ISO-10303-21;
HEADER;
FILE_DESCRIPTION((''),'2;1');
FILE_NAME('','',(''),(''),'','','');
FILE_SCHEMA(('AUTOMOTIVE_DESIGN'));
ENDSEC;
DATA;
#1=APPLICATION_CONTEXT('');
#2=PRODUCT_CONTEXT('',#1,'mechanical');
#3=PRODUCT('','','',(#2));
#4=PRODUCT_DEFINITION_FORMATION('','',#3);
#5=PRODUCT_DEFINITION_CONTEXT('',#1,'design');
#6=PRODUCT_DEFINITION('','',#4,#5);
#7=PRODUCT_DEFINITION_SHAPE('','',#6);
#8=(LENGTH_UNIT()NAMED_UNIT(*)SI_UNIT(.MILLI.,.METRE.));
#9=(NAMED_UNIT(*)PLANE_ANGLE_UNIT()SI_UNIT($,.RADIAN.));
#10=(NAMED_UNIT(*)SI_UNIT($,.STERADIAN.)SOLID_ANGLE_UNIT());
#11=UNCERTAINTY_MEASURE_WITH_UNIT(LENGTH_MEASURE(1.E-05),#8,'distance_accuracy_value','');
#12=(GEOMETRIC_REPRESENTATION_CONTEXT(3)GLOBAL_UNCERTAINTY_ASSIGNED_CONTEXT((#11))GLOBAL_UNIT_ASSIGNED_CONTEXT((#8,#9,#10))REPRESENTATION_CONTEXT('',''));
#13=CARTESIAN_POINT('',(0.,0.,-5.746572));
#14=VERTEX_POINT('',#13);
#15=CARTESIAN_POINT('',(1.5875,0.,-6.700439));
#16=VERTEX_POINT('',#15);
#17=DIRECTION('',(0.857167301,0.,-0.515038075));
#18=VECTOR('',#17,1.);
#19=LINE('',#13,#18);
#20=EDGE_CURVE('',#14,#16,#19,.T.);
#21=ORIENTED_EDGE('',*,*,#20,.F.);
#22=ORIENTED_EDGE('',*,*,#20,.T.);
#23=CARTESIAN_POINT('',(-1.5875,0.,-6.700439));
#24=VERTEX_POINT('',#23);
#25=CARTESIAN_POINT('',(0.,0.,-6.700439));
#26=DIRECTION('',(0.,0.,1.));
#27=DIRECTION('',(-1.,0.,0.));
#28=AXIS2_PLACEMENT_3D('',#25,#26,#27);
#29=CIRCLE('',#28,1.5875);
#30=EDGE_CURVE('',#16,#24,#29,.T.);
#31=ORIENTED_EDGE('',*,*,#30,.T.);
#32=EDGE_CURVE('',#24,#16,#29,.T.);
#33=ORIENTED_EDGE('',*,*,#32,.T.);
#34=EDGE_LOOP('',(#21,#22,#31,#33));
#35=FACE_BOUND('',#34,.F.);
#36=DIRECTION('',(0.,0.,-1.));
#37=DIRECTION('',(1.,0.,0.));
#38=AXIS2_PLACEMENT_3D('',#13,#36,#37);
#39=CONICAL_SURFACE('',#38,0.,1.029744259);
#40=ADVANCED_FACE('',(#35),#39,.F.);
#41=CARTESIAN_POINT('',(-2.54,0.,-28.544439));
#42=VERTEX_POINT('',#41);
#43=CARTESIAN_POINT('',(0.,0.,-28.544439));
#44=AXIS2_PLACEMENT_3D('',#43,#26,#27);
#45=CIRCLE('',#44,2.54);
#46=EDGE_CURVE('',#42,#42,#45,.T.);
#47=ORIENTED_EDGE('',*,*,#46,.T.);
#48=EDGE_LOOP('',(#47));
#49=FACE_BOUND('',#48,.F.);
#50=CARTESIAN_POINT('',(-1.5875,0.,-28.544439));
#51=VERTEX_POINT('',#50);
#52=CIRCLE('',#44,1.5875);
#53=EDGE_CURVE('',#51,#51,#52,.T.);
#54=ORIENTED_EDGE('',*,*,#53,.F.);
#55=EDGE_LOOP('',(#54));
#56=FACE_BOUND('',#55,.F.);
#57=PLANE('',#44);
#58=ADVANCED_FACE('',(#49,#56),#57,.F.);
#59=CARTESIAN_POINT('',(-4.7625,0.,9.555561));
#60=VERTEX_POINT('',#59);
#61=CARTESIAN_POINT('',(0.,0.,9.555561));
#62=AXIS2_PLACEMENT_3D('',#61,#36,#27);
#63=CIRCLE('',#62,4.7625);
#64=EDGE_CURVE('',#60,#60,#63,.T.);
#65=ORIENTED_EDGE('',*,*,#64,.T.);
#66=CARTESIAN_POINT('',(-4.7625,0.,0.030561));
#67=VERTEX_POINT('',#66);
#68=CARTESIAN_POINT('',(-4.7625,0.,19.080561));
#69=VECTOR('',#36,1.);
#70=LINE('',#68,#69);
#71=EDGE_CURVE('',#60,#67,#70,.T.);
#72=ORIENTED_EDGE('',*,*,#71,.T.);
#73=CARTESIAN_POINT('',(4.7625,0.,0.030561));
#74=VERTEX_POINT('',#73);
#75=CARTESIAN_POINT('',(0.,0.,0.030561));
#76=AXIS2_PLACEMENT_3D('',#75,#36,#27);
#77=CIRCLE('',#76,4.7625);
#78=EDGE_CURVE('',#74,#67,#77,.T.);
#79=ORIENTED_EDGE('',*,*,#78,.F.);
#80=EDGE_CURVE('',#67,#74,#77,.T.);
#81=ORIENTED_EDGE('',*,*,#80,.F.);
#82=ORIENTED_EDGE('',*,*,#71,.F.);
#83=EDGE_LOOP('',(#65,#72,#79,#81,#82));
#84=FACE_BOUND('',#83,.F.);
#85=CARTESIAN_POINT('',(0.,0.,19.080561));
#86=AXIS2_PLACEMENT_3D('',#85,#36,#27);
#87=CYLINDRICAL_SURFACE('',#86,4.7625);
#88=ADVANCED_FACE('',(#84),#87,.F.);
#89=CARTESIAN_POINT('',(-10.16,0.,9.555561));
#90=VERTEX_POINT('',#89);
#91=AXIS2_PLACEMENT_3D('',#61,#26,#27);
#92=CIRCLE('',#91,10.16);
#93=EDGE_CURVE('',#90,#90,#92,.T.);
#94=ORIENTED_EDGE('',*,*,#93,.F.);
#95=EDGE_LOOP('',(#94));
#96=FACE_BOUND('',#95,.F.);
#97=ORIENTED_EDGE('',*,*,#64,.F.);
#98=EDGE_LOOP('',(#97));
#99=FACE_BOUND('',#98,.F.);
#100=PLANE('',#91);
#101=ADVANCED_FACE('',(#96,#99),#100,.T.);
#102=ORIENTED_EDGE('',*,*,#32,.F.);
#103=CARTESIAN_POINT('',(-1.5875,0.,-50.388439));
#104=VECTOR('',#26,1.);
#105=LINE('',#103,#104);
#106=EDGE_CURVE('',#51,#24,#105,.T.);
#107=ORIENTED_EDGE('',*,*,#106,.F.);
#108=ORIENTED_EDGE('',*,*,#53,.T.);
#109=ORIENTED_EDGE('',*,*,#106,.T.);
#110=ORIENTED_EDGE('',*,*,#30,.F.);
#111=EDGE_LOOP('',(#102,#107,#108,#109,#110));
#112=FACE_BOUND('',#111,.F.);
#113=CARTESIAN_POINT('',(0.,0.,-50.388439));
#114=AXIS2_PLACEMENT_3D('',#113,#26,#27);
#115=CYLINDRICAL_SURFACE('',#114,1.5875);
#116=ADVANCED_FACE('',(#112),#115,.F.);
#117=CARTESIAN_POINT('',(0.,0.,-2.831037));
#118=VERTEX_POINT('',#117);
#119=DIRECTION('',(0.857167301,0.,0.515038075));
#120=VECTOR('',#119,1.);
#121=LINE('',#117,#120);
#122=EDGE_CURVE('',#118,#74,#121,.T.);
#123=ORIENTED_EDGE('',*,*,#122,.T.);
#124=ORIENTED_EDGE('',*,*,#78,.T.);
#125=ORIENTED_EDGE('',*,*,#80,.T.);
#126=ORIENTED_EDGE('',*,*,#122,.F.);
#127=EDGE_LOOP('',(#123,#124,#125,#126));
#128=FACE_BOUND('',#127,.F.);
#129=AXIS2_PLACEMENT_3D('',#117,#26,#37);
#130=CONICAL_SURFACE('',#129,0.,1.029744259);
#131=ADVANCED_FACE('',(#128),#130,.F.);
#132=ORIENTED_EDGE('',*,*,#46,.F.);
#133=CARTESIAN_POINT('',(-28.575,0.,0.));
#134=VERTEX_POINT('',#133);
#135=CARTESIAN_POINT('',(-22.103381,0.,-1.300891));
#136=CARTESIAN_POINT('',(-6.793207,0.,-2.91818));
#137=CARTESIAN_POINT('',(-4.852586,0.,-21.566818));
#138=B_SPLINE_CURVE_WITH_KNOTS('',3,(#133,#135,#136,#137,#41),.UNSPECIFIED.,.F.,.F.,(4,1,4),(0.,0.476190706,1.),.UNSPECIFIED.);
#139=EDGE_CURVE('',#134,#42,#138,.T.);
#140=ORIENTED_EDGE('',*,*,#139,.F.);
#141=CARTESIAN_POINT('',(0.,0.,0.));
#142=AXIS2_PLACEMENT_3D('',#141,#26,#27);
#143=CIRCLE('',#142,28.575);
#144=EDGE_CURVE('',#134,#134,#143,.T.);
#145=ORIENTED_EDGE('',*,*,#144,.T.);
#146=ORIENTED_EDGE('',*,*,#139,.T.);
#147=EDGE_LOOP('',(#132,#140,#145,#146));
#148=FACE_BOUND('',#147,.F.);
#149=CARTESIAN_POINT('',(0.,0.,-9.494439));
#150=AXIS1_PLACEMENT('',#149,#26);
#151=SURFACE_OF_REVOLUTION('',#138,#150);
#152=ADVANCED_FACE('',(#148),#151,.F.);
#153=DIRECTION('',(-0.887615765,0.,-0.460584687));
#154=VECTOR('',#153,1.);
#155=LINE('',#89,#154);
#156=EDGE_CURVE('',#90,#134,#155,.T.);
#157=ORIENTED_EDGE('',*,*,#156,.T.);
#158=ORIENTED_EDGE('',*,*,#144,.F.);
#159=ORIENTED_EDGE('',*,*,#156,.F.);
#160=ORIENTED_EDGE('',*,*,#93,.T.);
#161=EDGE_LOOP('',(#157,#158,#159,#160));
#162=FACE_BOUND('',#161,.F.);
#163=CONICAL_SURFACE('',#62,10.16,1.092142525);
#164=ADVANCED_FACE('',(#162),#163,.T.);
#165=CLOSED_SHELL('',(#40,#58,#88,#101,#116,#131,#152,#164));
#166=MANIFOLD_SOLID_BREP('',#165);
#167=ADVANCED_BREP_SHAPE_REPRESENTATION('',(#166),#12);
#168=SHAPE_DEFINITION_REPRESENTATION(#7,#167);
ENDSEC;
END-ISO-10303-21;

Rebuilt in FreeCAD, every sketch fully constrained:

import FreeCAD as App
import Part
import Sketcher
from FreeCAD import Vector
Q = App.Units.Quantity

doc = App.newDocument("Part")
params = doc.addObject("Spreadsheet::Sheet", "Params")
for row, (alias, value) in enumerate([
    ("sketch1_width", "0.4 in"),
    ("sketch1_height", "1.5 in"),
    ("revolution_angle", "360 deg"),
    ("sketch2_diameter", "0.375 in"),
    ("hole_diameter", "0.375 in"),
    ("hole_depth", "0.375 in"),
    ("sketch3_diameter", "0.125 in"),
    ("hole2_diameter", "0.125 in"),
    ("hole2_depth", "0.86 in"),
], start=1):
    params.set(f"A{row}", alias)
    params.set(f"B{row}", "=" + value)
    params.setAlias(f"B{row}", alias)

body = doc.addObject("PartDesign::Body", "Body")

# Sketch on XZ plane
sketch1 = body.newObject("Sketcher::SketchObject", "Sketch")
sketch1.AttachmentSupport = (doc.getObject("XZ_Plane"), [""])
sketch1.MapMode = "FlatFace"
sketch1.addGeometry(Part.LineSegment(Vector(-2.54, -28.544439, 0), Vector(0, -28.544439, 0)), False)
sketch1.addGeometry(Part.LineSegment(Vector(0, -28.544439, 0), Vector(0, 9.555561, 0)), False)
sketch1.addGeometry(Part.LineSegment(Vector(0, 9.555561, 0), Vector(-10.16, 9.555561, 0)), False)
sketch1.addGeometry(Part.LineSegment(Vector(-10.16, 9.555561, 0), Vector(-28.575, 0, 0)), False)
sketch1.addGeometry(Part.BSplineCurve([Vector(-28.575, 0, 0), Vector(-22.103381, -1.300891, 0), Vector(-6.793207, -2.91818, 0), Vector(-4.852586, -21.566818, 0), Vector(-2.54, -28.544439, 0)], [4, 1, 4], [0, 0.476190706, 1], False, 3, [1, 1, 1, 1, 1], False), False)
sketch1.addConstraint(Sketcher.Constraint("Block", 4))
sketch1.addConstraint(Sketcher.Constraint("Coincident", 0, 2, 1, 1))
sketch1.addConstraint(Sketcher.Constraint("Coincident", 1, 2, 2, 1))
sketch1.addConstraint(Sketcher.Constraint("Coincident", 2, 2, 3, 1))
sketch1.addConstraint(Sketcher.Constraint("Coincident", 3, 2, 4, 1))
sketch1.addConstraint(Sketcher.Constraint("Coincident", 4, 2, 0, 1))
sketch1.addConstraint(Sketcher.Constraint("Horizontal", 0))
sketch1.addConstraint(Sketcher.Constraint("Vertical", 1))
sketch1.addConstraint(Sketcher.Constraint("Horizontal", 2))
sketch1.addConstraint(Sketcher.Constraint("PointOnObject", 0, 2, -2))
sketch1.addConstraint(Sketcher.Constraint("DistanceX", 2, 2, 2, 1, Q("0.4 in")))
sketch1.addConstraint(Sketcher.Constraint("DistanceY", 1, 1, 1, 2, Q("1.5 in")))
sketch1.setExpression("Constraints[10]", "Params.sketch1_width")
sketch1.setExpression("Constraints[11]", "Params.sketch1_height")
revolution = body.newObject("PartDesign::Revolution", "Revolution")
revolution.Profile = sketch1
revolution.ReferenceAxis = (sketch1, ["V_Axis"])
revolution.setExpression("Angle", "Params.revolution_angle")

# Sketch on XY plane
sketch2 = body.newObject("Sketcher::SketchObject", "Sketch001")
sketch2.AttachmentSupport = (doc.getObject("XY_Plane"), [""])
sketch2.MapMode = "FlatFace"
sketch2.AttachmentOffset = App.Placement(Vector(0, 0, 9.555561), App.Rotation())
sketch2.addGeometry(Part.Circle(Vector(0, 0, 0), Vector(0, 0, 1), 4.7625), False)
sketch2.addConstraint(Sketcher.Constraint("Coincident", 0, 3, -1, 1))
sketch2.addConstraint(Sketcher.Constraint("Diameter", 0, Q("0.375 in")))
sketch2.setExpression("Constraints[1]", "Params.sketch2_diameter")
doc.recompute()
hole = body.newObject("PartDesign::Hole", "Hole")
hole.Profile = sketch2
hole.ThreadType = "None"
hole.setExpression("Diameter", "Params.hole_diameter")
hole.DepthType = "Dimension"
hole.setExpression("Depth", "Params.hole_depth")
hole.DrillPoint = "Angled"
hole.DrillPointAngle = 118

# Sketch on XY plane
sketch3 = body.newObject("Sketcher::SketchObject", "Sketch002")
sketch3.AttachmentSupport = (doc.getObject("XY_Plane"), [""])
sketch3.MapMode = "FlatFace"
sketch3.AttachmentOffset = App.Placement(Vector(0, 0, -28.544439), App.Rotation())
sketch3.addGeometry(Part.Circle(Vector(0, 0, 0), Vector(0, 0, 1), 1.5875), False)
sketch3.addConstraint(Sketcher.Constraint("Coincident", 0, 3, -1, 1))
sketch3.addConstraint(Sketcher.Constraint("Diameter", 0, Q("0.125 in")))
sketch3.setExpression("Constraints[1]", "Params.sketch3_diameter")
doc.recompute()
hole2 = body.newObject("PartDesign::Hole", "Hole001")
hole2.Profile = sketch3
hole2.ThreadType = "None"
hole2.setExpression("Diameter", "Params.hole2_diameter")
hole2.DepthType = "Dimension"
hole2.setExpression("Depth", "Params.hole2_depth")
hole2.DrillPoint = "Angled"
hole2.DrillPointAngle = 118
hole2.Reversed = True

doc.recompute()
